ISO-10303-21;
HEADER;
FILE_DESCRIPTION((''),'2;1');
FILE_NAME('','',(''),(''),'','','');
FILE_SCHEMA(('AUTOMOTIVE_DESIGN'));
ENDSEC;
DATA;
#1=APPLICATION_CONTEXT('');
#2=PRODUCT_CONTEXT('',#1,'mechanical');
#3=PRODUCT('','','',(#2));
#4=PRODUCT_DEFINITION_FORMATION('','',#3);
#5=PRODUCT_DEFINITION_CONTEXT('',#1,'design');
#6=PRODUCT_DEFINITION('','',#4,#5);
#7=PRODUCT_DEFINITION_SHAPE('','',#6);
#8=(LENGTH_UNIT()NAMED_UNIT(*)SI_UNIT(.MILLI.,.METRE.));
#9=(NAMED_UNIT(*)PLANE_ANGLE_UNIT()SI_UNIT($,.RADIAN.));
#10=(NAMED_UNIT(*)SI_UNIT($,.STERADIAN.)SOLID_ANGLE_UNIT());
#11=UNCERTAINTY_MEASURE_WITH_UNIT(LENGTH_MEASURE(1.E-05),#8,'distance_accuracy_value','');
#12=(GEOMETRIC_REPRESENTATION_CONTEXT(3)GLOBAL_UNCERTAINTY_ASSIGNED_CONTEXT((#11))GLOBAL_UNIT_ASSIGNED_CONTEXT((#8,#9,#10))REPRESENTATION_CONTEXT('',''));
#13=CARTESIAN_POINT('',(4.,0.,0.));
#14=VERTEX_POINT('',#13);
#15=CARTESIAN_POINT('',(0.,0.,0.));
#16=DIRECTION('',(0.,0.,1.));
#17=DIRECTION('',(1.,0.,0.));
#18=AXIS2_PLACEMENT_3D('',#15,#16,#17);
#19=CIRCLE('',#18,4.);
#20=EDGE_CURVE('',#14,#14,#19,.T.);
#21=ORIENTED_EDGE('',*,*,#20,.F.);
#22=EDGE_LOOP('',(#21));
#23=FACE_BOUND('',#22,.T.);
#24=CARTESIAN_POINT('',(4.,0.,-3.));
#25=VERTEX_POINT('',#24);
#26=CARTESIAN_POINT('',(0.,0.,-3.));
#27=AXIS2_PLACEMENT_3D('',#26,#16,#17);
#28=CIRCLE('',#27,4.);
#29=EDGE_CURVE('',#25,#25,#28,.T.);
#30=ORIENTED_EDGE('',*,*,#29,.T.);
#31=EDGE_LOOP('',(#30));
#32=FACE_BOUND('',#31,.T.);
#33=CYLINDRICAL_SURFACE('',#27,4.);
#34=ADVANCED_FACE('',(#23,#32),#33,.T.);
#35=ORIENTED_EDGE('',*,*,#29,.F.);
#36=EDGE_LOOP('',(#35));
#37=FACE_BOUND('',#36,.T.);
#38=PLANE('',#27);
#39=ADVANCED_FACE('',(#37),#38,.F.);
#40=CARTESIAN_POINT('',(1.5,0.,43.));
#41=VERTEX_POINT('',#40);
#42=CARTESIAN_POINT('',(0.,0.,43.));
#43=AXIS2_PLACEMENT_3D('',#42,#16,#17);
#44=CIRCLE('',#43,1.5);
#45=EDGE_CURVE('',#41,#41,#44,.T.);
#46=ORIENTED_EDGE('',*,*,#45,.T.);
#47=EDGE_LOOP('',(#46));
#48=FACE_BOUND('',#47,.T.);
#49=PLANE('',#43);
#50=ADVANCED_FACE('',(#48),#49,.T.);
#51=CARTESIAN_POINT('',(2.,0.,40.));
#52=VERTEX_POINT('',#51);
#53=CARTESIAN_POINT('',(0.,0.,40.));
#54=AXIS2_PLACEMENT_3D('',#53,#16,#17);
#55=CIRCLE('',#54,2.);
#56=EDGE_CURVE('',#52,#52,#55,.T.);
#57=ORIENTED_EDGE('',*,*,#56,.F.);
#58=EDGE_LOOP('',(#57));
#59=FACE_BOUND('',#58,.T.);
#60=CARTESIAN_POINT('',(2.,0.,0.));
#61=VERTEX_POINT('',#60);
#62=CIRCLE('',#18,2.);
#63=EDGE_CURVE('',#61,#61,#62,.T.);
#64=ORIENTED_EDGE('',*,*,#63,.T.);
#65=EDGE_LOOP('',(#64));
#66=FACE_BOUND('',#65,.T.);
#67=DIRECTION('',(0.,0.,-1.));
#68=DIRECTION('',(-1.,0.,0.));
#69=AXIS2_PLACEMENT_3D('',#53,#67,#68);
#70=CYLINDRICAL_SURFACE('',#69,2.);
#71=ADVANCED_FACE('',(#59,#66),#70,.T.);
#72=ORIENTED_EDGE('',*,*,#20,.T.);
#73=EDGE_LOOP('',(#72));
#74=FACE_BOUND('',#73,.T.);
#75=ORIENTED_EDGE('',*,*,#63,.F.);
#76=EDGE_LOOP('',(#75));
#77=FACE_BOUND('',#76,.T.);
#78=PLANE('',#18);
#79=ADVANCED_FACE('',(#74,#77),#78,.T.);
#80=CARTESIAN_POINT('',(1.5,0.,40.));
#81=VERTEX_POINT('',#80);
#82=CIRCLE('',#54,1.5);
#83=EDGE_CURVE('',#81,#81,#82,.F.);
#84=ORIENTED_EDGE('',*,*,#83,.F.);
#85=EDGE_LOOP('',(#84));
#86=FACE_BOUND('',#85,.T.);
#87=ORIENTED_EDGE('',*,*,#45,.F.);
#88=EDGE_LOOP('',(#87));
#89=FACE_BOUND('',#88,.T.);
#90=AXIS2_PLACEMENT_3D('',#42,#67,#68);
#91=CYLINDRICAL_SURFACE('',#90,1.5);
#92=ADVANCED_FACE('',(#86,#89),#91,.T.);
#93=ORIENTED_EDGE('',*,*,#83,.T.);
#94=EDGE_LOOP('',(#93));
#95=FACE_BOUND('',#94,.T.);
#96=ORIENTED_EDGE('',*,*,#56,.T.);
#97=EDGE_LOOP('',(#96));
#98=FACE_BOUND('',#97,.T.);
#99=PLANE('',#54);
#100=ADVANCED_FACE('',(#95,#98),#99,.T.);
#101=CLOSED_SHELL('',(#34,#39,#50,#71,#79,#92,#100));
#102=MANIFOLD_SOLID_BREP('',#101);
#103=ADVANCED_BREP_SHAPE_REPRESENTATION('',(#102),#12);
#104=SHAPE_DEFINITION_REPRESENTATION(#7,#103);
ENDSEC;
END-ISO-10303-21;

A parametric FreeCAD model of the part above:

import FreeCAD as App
import Part
import Sketcher
from FreeCAD import Vector

doc = App.newDocument("Part")
body = doc.addObject("PartDesign::Body", "Body")

sketch1 = body.newObject("Sketcher::SketchObject", "Sketch")
sketch1.AttachmentSupport = (doc.getObject("XY_Plane"), [""])
sketch1.MapMode = "FlatFace"
sketch1.addGeometry(Part.Circle(Vector(0, 0, 0), Vector(0, 0, 1), 2), False)
sketch1.addConstraint(Sketcher.Constraint("Coincident", 0, 3, -1, 1))
sketch1.addConstraint(Sketcher.Constraint("Diameter", 0, 4.0))
pad1 = body.newObject("PartDesign::Pad", "Pad")
pad1.Profile = sketch1
pad1.Length = 40

sketch2 = body.newObject("Sketcher::SketchObject", "Sketch001")
sketch2.AttachmentSupport = (doc.getObject("XY_Plane"), [""])
sketch2.MapMode = "FlatFace"
sketch2.addGeometry(Part.Circle(Vector(0, 0, 0), Vector(0, 0, 1), 1.5), False)
sketch2.addConstraint(Sketcher.Constraint("Coincident", 0, 3, -1, 1))
sketch2.addConstraint(Sketcher.Constraint("Diameter", 0, 3.0))
pad2 = body.newObject("PartDesign::Pad", "Pad001")
pad2.Profile = sketch2
pad2.Length = 43

sketch3 = body.newObject("Sketcher::SketchObject", "Sketch002")
sketch3.AttachmentSupport = (doc.getObject("XY_Plane"), [""])
sketch3.MapMode = "FlatFace"
sketch3.addGeometry(Part.Circle(Vector(0, 0, 0), Vector(0, 0, 1), 4), False)
sketch3.addConstraint(Sketcher.Constraint("Coincident", 0, 3, -1, 1))
sketch3.addConstraint(Sketcher.Constraint("Diameter", 0, 8.0))
pad3 = body.newObject("PartDesign::Pad", "Pad002")
pad3.Profile = sketch3
pad3.Length = 3
pad3.Reversed = True

doc.recompute()
